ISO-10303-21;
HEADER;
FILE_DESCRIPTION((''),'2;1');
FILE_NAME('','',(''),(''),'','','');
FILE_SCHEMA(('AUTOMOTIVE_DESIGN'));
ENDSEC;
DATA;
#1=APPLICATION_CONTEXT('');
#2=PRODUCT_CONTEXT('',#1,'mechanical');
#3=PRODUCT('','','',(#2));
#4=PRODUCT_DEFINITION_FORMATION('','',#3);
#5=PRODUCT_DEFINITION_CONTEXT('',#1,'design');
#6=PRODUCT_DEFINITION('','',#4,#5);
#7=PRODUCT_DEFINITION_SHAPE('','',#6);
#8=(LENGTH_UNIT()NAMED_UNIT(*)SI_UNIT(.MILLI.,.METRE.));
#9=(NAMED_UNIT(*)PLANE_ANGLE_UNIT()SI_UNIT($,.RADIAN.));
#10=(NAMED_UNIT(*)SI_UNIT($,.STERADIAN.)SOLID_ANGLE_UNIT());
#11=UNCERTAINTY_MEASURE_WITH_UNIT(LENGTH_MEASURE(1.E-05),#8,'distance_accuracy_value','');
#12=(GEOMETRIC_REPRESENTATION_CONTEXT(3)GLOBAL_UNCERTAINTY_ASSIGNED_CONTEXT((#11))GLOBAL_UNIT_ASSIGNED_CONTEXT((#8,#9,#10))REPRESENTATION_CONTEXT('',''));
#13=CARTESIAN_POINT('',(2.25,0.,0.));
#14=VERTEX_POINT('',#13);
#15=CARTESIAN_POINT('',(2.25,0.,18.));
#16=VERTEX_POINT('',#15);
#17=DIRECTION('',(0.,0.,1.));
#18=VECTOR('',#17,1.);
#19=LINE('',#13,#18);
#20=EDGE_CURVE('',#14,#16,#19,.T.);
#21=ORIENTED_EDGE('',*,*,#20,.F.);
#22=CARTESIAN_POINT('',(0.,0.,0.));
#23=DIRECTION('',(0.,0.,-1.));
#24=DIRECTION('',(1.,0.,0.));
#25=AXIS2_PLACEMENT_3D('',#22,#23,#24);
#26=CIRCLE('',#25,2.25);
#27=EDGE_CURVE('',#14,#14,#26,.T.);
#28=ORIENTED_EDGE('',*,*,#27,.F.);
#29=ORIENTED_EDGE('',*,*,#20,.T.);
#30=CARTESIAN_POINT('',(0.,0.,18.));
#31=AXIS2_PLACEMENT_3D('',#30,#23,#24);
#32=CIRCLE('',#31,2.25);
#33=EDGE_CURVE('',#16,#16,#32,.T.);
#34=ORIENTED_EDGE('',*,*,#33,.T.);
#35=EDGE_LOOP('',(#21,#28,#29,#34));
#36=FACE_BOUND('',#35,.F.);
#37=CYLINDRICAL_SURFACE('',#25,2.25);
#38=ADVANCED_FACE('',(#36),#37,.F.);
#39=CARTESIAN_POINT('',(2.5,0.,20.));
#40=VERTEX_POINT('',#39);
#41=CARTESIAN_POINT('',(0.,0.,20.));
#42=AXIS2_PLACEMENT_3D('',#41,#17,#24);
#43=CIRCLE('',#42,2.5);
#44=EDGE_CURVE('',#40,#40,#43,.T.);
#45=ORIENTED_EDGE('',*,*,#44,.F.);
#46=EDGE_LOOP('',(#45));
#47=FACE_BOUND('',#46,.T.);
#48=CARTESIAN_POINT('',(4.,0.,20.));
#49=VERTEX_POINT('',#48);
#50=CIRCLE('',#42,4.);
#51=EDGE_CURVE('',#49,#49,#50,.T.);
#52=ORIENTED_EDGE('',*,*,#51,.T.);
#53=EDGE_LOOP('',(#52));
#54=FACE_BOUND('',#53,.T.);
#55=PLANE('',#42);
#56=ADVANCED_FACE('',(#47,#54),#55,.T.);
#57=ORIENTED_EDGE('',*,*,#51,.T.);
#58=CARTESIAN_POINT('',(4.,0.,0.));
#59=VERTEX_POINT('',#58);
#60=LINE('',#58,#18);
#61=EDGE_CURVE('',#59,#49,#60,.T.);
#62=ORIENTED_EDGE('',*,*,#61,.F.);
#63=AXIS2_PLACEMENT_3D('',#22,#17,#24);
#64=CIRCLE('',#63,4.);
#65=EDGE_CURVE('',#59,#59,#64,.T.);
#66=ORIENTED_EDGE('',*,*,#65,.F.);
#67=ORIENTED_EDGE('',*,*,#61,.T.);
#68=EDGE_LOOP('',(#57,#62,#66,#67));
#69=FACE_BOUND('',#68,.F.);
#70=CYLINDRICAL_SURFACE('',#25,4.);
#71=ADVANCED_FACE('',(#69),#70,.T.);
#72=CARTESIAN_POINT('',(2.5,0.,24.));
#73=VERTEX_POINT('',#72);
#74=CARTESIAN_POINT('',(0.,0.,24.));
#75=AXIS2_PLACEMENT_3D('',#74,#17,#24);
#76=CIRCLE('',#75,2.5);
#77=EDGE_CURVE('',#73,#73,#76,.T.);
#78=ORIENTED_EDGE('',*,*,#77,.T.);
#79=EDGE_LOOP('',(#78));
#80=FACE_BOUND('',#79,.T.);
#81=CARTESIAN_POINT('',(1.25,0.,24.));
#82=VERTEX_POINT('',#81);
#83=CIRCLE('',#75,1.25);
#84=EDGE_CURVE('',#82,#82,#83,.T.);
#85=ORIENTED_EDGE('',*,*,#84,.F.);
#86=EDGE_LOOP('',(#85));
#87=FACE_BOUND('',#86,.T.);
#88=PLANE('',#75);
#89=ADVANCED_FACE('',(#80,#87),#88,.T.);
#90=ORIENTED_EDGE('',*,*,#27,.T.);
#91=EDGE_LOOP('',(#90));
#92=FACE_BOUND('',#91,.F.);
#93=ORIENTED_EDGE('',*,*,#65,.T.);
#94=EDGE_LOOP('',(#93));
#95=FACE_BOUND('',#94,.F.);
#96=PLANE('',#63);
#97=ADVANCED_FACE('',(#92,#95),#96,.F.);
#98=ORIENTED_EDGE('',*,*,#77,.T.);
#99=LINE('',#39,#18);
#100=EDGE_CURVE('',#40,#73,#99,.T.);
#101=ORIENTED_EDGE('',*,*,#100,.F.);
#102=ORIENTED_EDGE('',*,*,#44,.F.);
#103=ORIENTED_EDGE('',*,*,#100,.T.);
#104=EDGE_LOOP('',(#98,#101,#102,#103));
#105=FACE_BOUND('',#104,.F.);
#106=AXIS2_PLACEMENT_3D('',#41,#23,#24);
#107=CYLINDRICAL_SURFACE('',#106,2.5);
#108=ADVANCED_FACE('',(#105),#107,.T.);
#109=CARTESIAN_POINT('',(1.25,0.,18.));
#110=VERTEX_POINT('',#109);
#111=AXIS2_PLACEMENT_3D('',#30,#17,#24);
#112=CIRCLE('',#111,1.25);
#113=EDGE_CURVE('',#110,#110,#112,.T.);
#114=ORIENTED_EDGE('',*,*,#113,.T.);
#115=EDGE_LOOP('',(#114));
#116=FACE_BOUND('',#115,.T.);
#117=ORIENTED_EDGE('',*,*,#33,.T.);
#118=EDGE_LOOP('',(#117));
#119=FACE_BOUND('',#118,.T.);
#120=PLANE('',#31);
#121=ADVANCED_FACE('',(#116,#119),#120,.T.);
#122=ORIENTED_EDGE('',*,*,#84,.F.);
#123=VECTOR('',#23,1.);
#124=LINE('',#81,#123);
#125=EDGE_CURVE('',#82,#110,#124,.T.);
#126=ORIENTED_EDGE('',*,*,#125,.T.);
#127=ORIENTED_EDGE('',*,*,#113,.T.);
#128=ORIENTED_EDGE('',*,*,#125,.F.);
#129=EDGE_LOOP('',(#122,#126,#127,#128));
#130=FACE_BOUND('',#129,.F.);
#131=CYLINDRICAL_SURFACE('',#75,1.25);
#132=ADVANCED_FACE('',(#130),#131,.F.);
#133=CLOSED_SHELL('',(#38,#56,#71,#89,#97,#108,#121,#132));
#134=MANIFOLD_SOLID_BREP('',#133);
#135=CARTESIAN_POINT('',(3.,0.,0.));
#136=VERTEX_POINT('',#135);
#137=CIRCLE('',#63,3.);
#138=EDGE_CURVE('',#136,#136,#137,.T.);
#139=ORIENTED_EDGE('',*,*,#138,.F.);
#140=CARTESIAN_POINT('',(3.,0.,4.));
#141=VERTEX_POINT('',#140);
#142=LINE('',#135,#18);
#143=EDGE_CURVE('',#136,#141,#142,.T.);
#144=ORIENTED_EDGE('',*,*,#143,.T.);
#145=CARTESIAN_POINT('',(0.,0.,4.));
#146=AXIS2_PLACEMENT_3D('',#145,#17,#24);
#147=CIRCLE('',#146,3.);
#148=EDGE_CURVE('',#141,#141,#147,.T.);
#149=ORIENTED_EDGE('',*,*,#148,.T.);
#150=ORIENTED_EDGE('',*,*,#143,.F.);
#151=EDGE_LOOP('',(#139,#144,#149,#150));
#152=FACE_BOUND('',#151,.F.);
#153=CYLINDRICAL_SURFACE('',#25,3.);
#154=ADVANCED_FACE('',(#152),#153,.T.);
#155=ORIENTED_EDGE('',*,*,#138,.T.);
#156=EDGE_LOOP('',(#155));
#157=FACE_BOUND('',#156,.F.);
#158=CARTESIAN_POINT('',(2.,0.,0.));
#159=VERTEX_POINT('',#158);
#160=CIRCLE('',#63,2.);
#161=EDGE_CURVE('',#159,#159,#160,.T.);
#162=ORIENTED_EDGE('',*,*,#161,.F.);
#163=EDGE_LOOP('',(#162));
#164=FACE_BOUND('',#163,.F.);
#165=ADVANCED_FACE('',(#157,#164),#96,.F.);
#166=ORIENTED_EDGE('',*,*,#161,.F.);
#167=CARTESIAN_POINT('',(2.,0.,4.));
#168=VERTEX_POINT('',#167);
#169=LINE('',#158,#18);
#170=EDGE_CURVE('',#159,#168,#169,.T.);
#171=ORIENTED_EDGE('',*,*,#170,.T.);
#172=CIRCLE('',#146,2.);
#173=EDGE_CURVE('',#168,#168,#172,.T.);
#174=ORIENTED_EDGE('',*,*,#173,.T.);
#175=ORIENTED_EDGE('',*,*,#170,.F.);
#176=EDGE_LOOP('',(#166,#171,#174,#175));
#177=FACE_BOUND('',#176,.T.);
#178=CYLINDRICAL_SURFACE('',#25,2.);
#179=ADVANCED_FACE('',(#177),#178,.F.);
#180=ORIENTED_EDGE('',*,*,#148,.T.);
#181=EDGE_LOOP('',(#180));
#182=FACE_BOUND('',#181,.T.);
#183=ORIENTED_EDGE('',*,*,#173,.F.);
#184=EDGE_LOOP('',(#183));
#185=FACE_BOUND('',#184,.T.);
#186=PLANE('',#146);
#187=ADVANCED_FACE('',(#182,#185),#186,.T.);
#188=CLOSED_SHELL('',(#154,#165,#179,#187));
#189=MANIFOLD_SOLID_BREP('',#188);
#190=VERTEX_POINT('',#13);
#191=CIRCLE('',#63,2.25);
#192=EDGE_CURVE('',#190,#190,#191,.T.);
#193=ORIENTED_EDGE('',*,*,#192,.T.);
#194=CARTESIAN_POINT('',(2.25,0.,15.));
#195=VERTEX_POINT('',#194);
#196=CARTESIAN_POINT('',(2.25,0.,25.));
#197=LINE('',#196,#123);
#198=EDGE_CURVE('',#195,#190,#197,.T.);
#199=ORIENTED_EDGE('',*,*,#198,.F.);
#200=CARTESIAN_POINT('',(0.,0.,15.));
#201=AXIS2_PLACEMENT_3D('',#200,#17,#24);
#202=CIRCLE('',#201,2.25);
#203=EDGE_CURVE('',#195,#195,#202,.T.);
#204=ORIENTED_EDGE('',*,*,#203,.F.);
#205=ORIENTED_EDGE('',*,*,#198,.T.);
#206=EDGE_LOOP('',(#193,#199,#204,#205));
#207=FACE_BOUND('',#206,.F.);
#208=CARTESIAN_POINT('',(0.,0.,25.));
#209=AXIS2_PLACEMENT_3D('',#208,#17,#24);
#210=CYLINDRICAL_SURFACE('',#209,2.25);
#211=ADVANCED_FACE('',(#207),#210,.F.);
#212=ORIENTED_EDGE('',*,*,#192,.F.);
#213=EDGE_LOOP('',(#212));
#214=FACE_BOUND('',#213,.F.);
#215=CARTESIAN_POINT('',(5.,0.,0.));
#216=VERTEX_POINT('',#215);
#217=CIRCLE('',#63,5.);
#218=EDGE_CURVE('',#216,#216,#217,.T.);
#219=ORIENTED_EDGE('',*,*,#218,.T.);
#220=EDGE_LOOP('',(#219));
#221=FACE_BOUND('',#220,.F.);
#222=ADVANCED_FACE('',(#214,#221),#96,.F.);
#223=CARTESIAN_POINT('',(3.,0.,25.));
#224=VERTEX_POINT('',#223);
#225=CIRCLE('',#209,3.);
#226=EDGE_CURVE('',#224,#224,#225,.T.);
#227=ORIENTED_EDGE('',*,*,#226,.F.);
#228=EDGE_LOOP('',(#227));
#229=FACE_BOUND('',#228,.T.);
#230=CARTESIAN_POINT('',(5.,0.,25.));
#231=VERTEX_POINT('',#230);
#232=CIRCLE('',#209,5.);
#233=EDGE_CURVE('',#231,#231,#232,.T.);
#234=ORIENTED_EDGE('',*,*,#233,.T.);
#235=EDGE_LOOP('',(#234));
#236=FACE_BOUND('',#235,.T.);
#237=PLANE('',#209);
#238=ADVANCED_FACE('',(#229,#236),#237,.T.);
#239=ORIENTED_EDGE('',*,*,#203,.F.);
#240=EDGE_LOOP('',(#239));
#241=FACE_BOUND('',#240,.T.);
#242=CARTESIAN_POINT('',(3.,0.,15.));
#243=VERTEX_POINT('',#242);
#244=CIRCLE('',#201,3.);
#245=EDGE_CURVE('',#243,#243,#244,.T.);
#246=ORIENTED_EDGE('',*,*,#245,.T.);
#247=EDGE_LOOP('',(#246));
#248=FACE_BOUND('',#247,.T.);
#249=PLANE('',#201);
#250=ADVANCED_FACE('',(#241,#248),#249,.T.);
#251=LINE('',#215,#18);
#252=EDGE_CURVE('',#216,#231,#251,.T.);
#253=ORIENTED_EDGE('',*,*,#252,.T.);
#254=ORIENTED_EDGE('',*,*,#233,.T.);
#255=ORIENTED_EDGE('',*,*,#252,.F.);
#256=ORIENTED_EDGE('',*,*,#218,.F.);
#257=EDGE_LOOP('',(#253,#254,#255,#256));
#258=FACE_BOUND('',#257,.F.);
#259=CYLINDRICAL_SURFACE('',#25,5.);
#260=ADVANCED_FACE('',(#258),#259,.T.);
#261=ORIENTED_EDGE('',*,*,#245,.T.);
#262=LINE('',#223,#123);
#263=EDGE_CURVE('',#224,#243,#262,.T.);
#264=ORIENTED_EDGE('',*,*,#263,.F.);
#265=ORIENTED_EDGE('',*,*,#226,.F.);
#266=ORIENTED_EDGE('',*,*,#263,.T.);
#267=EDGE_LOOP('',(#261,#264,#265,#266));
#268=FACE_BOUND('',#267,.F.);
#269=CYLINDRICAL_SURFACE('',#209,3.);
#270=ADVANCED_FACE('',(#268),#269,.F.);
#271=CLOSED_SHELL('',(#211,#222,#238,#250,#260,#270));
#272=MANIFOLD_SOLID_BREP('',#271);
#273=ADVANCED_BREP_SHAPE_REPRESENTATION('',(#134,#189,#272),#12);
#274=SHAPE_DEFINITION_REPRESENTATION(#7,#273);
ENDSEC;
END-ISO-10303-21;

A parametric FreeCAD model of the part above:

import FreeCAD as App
import Part
import Sketcher

V = App.Vector

doc = App.newDocument("Part")
body = doc.addObject("PartDesign::Body", "Body")

# Sketch on XY plane
sketch1 = doc.addObject("Sketcher::SketchObject", "Sketch")
body.addObject(sketch1)
sketch1.AttachmentSupport = (doc.XY_Plane, [""])
sketch1.MapMode = "FlatFace"
sketch1.addGeometry(Part.Circle(V(0, 0, 0), V(0, 0, 1), 5), False)
sketch1.addConstraint(Sketcher.Constraint("Coincident", 0, 3, -1, 1))
sketch1.addConstraint(Sketcher.Constraint("Diameter", 0, 10.0))
pad1 = doc.addObject("PartDesign::Pad", "Pad")
body.addObject(pad1)
pad1.Profile = sketch1
pad1.Length = 25

# Sketch on XY plane
sketch2 = doc.addObject("Sketcher::SketchObject", "Sketch001")
body.addObject(sketch2)
sketch2.AttachmentSupport = (doc.XY_Plane, [""])
sketch2.MapMode = "FlatFace"
sketch2.AttachmentOffset = App.Placement(V(0, 0, 25), App.Rotation())
sketch2.addGeometry(Part.Circle(V(0, 0, 0), V(0, 0, 1), 2.2), False)
sketch2.addConstraint(Sketcher.Constraint("Coincident", 0, 3, -1, 1))
sketch2.addConstraint(Sketcher.Constraint("Diameter", 0, 4.5))
pocket1 = doc.addObject("PartDesign::Pocket", "Pocket")
body.addObject(pocket1)
pocket1.Profile = sketch2
pocket1.Type = "ThroughAll"

# Sketch on XY plane
sketch3 = doc.addObject("Sketcher::SketchObject", "Sketch002")
body.addObject(sketch3)
sketch3.AttachmentSupport = (doc.XY_Plane, [""])
sketch3.MapMode = "FlatFace"
sketch3.AttachmentOffset = App.Placement(V(0, 0, 25), App.Rotation())
sketch3.addGeometry(Part.Circle(V(0, 0, 0), V(0, 0, 1), 3), False)
sketch3.addConstraint(Sketcher.Constraint("Coincident", 0, 3, -1, 1))
sketch3.addConstraint(Sketcher.Constraint("Diameter", 0, 6.0))
pocket2 = doc.addObject("PartDesign::Pocket", "Pocket001")
body.addObject(pocket2)
pocket2.Profile = sketch3
pocket2.Length = 10
body2 = doc.addObject("PartDesign::Body", "Body001")

# Sketch on XY plane
sketch4 = doc.addObject("Sketcher::SketchObject", "Sketch003")
body2.addObject(sketch4)
sketch4.AttachmentSupport = (doc.getObject("XY_Plane001"), [""])
sketch4.MapMode = "FlatFace"
sketch4.addGeometry(Part.Circle(V(0, 0, 0), V(0, 0, 1), 4), False)
sketch4.addConstraint(Sketcher.Constraint("Coincident", 0, 3, -1, 1))
sketch4.addConstraint(Sketcher.Constraint("Diameter", 0, 8.0))
pad2 = doc.addObject("PartDesign::Pad", "Pad001")
body2.addObject(pad2)
pad2.Profile = sketch4
pad2.Length = 20

# Sketch on XY plane
sketch5 = doc.addObject("Sketcher::SketchObject", "Sketch004")
body2.addObject(sketch5)
sketch5.AttachmentSupport = (doc.getObject("XY_Plane001"), [""])
sketch5.MapMode = "FlatFace"
sketch5.AttachmentOffset = App.Placement(V(0, 0, 20), App.Rotation())
sketch5.addGeometry(Part.Circle(V(0, 0, 0), V(0, 0, 1), 2.5), False)
sketch5.addConstraint(Sketcher.Constraint("Coincident", 0, 3, -1, 1))
sketch5.addConstraint(Sketcher.Constraint("Diameter", 0, 5.0))
pad3 = doc.addObject("PartDesign::Pad", "Pad002")
body2.addObject(pad3)
pad3.Profile = sketch5
pad3.Length = 4

# Sketch on XY plane
sketch6 = doc.addObject("Sketcher::SketchObject", "Sketch005")
body2.addObject(sketch6)
sketch6.AttachmentSupport = (doc.getObject("XY_Plane001"), [""])
sketch6.MapMode = "FlatFace"
sketch6.AttachmentOffset = App.Placement(V(0, 0, 24), App.Rotation())
sketch6.addGeometry(Part.Circle(V(0, 0, 0), V(0, 0, 1), 1.2), False)
sketch6.addConstraint(Sketcher.Constraint("Coincident", 0, 3, -1, 1))
sketch6.addConstraint(Sketcher.Constraint("Diameter", 0, 2.5))
pocket3 = doc.addObject("PartDesign::Pocket", "Pocket002")
body2.addObject(pocket3)
pocket3.Profile = sketch6
pocket3.Type = "ThroughAll"

# Sketch on XY plane
sketch7 = doc.addObject("Sketcher::SketchObject", "Sketch006")
body2.addObject(sketch7)
sketch7.AttachmentSupport = (doc.getObject("XY_Plane001"), [""])
sketch7.MapMode = "FlatFace"
sketch7.addGeometry(Part.Circle(V(0, 0, 0), V(0, 0, 1), 2.2), False)
sketch7.addConstraint(Sketcher.Constraint("Coincident", 0, 3, -1, 1))
sketch7.addConstraint(Sketcher.Constraint("Diameter", 0, 4.5))
pocket4 = doc.addObject("PartDesign::Pocket", "Pocket003")
body2.addObject(pocket4)
pocket4.Profile = sketch7
pocket4.Length = 18
pocket4.Reversed = True
body3 = doc.addObject("PartDesign::Body", "Body002")

# Sketch on XY plane
sketch8 = doc.addObject("Sketcher::SketchObject", "Sketch007")
body3.addObject(sketch8)
sketch8.AttachmentSupport = (doc.getObject("XY_Plane002"), [""])
sketch8.MapMode = "FlatFace"
sketch8.addGeometry(Part.Circle(V(0, 0, 0), V(0, 0, 1), 3), False)
sketch8.addGeometry(Part.Circle(V(0, 0, 0), V(0, 0, 1), 2), False)
sketch8.addConstraint(Sketcher.Constraint("Coincident", 0, 3, -1, 1))
sketch8.addConstraint(Sketcher.Constraint("Coincident", 1, 3, -1, 1))
sketch8.addConstraint(Sketcher.Constraint("Diameter", 0, 6.0))
sketch8.addConstraint(Sketcher.Constraint("Diameter", 1, 4.0))
pad4 = doc.addObject("PartDesign::Pad", "Pad003")
body3.addObject(pad4)
pad4.Profile = sketch8
pad4.Length = 4

doc.recompute()
